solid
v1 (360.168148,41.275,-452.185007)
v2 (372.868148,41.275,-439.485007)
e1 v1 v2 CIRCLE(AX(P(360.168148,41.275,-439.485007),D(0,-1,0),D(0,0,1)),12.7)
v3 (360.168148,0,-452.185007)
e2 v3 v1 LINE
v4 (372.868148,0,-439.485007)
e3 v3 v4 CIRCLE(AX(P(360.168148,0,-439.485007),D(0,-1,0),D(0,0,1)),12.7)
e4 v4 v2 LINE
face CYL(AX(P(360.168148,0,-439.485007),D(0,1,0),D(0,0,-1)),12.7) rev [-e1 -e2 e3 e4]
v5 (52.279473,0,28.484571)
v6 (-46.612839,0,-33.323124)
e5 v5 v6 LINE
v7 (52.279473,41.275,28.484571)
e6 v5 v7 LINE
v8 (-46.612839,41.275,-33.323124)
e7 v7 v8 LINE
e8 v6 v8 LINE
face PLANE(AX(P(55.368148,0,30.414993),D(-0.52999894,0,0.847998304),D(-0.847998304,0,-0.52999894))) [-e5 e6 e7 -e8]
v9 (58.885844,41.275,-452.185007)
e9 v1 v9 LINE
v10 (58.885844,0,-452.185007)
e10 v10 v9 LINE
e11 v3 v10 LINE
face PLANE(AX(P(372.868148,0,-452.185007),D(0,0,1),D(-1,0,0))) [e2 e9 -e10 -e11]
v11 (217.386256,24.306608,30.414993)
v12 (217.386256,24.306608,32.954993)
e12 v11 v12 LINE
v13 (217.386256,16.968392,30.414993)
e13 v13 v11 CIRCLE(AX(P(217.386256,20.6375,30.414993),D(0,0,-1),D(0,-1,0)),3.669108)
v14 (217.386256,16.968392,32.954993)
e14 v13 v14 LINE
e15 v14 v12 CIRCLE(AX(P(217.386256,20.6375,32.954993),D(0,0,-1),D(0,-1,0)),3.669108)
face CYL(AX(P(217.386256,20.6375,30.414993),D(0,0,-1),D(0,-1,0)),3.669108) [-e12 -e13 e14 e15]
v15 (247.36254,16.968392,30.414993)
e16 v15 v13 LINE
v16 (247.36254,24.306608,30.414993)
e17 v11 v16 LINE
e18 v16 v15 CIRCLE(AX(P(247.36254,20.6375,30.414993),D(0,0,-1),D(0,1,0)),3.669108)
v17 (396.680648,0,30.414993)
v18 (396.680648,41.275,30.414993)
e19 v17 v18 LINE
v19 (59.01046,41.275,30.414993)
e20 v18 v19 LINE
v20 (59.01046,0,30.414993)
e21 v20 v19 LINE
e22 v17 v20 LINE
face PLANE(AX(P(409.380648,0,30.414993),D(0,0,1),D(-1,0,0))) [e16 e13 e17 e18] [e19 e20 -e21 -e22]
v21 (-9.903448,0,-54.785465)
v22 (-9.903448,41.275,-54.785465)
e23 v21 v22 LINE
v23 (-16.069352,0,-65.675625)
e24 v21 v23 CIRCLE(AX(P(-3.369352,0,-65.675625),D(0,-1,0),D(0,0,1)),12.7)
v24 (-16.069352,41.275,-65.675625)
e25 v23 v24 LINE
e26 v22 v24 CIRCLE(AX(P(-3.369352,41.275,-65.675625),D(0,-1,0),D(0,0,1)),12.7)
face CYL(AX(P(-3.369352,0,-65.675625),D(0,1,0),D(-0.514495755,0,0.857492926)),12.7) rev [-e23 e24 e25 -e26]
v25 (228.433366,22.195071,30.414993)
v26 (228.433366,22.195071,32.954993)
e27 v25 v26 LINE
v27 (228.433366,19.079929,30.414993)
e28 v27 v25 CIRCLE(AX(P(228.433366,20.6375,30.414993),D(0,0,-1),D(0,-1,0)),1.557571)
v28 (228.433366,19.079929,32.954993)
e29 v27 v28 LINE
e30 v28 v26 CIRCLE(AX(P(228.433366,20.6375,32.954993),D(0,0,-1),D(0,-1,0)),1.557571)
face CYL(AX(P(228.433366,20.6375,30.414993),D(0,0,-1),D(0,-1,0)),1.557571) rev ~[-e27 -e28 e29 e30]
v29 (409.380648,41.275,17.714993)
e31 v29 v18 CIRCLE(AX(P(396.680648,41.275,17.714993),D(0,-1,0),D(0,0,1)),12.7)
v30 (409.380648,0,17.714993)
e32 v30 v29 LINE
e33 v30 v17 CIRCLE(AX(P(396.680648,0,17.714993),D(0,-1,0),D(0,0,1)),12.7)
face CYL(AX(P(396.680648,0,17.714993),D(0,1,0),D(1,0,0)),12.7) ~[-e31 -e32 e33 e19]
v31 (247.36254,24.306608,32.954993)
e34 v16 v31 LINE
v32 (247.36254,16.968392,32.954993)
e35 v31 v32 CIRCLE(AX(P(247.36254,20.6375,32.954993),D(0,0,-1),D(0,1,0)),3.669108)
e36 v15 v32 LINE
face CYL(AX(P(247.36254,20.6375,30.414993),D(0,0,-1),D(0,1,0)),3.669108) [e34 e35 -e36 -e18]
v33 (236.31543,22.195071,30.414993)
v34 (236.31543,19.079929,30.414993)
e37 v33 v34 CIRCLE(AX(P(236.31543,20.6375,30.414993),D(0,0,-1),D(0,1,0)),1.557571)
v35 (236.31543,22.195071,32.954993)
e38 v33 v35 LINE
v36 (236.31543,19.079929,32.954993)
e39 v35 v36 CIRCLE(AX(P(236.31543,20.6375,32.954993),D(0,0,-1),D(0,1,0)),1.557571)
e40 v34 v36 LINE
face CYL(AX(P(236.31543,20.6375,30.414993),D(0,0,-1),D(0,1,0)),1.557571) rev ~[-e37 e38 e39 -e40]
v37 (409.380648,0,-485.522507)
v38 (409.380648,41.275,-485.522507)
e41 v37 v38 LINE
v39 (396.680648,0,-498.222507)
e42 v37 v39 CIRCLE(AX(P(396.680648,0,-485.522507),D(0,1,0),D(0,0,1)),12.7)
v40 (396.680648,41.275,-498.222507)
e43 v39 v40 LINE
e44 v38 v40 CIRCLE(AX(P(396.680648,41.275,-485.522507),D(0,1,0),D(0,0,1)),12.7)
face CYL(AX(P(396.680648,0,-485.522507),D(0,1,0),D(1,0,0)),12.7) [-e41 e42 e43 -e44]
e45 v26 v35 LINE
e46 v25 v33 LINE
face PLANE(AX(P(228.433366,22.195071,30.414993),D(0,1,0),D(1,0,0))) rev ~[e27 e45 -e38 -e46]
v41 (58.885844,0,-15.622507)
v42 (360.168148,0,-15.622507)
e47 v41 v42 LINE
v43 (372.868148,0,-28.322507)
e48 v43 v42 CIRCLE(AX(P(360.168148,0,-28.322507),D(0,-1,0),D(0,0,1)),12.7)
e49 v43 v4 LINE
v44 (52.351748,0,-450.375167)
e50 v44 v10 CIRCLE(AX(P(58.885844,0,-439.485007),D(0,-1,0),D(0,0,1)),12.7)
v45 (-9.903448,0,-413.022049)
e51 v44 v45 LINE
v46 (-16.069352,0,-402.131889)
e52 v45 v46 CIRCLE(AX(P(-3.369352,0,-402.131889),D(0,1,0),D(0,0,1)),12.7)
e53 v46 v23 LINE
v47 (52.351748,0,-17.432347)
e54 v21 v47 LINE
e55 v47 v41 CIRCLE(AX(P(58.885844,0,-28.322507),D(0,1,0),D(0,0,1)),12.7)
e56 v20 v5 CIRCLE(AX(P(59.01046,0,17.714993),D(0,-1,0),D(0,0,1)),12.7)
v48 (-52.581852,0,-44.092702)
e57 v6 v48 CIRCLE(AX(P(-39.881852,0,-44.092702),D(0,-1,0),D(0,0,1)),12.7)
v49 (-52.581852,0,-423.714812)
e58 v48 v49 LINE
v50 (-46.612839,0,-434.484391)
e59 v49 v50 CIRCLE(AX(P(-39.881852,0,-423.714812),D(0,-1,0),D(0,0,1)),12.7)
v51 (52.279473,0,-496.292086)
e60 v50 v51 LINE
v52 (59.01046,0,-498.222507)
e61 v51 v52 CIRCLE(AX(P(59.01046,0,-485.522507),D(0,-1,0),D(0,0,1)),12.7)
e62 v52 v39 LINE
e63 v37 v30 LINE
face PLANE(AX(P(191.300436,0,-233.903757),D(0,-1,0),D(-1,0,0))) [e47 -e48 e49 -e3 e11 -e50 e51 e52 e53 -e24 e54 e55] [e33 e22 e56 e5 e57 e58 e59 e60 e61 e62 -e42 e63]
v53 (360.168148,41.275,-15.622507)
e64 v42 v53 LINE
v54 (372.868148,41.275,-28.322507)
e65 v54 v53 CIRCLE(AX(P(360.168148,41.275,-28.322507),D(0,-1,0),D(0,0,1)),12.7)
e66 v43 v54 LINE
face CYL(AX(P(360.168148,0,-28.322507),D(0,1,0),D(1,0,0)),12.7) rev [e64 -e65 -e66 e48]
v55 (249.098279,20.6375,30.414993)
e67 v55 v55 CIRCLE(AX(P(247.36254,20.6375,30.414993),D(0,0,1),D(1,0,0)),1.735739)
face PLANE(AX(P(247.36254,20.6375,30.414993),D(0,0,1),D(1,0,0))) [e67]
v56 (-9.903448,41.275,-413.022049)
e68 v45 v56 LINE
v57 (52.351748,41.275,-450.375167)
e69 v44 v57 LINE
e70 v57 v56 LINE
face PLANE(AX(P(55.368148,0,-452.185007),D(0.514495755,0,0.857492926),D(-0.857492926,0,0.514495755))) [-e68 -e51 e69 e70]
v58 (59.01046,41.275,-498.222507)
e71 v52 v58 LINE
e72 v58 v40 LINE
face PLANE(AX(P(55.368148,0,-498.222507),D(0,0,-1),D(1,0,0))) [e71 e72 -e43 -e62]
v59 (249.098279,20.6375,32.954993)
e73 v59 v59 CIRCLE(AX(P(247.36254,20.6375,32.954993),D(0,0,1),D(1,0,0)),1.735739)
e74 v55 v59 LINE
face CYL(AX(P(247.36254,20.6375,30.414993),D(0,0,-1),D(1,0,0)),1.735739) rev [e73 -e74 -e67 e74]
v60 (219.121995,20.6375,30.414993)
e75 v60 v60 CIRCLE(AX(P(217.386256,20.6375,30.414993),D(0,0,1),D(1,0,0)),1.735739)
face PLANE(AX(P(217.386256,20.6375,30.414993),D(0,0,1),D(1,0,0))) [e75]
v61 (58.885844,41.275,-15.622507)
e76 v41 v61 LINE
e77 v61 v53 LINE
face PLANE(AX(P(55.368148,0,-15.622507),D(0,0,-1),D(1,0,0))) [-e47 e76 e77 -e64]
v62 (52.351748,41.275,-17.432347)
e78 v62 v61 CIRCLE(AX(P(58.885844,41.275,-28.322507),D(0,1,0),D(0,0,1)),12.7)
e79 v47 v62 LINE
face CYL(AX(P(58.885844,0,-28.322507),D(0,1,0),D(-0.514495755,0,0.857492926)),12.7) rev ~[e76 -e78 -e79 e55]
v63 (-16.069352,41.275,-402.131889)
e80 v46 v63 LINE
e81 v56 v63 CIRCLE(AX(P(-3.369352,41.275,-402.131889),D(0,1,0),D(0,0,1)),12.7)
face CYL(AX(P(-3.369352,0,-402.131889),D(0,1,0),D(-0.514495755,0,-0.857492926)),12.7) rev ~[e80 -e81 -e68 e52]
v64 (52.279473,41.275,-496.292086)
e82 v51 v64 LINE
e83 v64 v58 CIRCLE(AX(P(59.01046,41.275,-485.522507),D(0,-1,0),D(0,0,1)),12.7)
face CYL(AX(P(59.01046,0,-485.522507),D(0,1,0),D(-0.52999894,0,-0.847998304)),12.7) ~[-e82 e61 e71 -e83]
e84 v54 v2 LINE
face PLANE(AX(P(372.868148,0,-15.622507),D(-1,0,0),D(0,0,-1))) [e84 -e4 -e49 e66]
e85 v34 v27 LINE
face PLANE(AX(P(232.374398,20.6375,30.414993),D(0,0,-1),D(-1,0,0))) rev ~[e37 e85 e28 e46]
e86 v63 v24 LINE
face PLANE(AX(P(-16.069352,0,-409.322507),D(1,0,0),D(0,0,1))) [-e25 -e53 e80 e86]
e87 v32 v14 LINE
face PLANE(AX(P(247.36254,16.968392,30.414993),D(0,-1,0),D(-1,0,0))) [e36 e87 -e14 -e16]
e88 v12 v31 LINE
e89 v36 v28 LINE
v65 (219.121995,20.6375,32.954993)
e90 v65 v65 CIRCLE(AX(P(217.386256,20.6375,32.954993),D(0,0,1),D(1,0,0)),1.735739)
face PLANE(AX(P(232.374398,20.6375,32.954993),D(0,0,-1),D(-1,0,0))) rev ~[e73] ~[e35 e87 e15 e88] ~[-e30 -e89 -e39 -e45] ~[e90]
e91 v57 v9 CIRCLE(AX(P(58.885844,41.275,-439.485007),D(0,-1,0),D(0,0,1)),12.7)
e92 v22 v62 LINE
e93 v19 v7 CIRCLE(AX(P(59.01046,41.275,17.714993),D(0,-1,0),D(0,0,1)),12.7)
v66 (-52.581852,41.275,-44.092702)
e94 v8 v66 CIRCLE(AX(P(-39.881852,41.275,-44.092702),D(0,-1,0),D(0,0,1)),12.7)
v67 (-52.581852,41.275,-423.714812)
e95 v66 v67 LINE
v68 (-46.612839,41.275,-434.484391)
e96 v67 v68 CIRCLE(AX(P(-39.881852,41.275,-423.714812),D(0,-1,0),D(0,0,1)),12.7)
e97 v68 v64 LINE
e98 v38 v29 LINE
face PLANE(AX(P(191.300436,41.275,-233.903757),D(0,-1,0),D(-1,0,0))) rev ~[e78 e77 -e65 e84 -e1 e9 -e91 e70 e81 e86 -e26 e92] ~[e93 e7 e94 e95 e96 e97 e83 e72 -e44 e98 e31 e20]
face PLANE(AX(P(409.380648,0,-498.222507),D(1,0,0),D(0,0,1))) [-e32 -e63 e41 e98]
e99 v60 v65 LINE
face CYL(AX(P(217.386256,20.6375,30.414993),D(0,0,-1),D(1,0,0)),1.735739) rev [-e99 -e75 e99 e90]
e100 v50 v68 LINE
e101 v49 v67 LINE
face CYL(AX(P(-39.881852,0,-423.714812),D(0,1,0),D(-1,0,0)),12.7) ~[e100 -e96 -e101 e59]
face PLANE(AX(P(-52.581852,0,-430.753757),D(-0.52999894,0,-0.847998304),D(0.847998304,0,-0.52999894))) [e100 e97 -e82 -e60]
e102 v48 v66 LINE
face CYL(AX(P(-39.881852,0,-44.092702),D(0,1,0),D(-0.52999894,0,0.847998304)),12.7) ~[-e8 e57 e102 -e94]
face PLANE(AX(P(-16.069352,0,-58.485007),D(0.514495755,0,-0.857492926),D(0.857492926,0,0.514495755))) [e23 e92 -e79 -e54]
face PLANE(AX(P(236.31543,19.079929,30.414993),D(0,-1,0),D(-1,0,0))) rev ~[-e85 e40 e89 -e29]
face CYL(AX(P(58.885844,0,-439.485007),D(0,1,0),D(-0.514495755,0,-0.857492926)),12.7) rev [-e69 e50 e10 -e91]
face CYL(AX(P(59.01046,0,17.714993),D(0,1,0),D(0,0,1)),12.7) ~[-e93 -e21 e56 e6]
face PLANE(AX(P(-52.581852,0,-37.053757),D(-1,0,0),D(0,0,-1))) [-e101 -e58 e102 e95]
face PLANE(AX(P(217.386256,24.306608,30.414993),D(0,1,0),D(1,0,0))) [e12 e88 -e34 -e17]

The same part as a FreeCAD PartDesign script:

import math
import FreeCAD as App
import Part
import Sketcher

V = App.Vector
Q = App.Units.Quantity


def edges_at(feature, points):
    """Names of the edges that pass closest to the given points."""
    edges = feature.Shape.Edges
    near = lambda p: min(range(len(edges)), key=lambda i: edges[i].distToShape(Part.Vertex(*p))[0])
    return sorted({f"Edge{near(p) + 1}" for p in points})


def add_polygon(sketch, points):
    """Adds a closed chain of lines whose ends are joined by coincident constraints."""
    first, n = sketch.GeometryCount, len(points)
    for a, b in zip(points, points[1:] + points[:1]):
        sketch.addGeometry(Part.LineSegment(App.Vector(*a, 0), App.Vector(*b, 0)), False)
    for i in range(n):
        sketch.addConstraint(Sketcher.Constraint("Coincident", first + i, 2, first + (i + 1) % n, 1))

doc = App.newDocument("Part")
body = doc.addObject("PartDesign::Body", "Body")

# Sketch on XZ plane
sketch1 = body.newObject("Sketcher::SketchObject", "Sketch")
sketch1.AttachmentSupport = (doc.getObject("XZ_Plane"), [""])
sketch1.MapMode = "FlatFace"
add_polygon(sketch1, [(409, 30), (409, -498), (55, -498), (-53, -431), (-53, -37), (55, 30)])  # lines 0-5
sketch1.addConstraint([
    Sketcher.Constraint("Vertical", 0),
    Sketcher.Constraint("Horizontal", 1),
    Sketcher.Constraint("Vertical", 3),
    Sketcher.Constraint("Horizontal", 5),
    Sketcher.Constraint("Vertical", 1, 2, 4, 2),
    Sketcher.Constraint("Equal", 2, 4),
    Sketcher.Constraint("DistanceY", 3, 1, 3, 2, Q("15.5 in")),
    Sketcher.Constraint("DistanceX", 1, 2, 1, 1, Q("13.9375 in")),
    Sketcher.Constraint("DistanceY", 0, 2, 0, 1, Q("20.8125 in")),
    Sketcher.Constraint("DistanceX", 2, 2, 1, 2, Q("4.25 in")),
    Sketcher.Constraint("DistanceX", -1, 1, 0, 2, 409.380648),
    Sketcher.Constraint("DistanceY", 0, 2, -1, 1, 498.222507),
])
pad1 = body.newObject("PartDesign::Pad", "Pad")
pad1.Profile = sketch1
pad1.Length = Q("1.625 in")
pad1.Reversed = True

# Sketch on XZ plane
sketch2 = body.newObject("Sketcher::SketchObject", "Sketch001")
sketch2.AttachmentSupport = (doc.getObject("XZ_Plane"), [""])
sketch2.MapMode = "FlatFace"
add_polygon(sketch2, [(-124, -570), (-124, 102), (481, 102), (481, -570)])  # lines 0-3
add_polygon(sketch2, [(55, -498), (409, -498), (409, 30), (55, 30), (-53, -37), (-53, -431)])  # lines 4-9
add_polygon(sketch2, [(55, -16), (373, -16), (373, -452), (55, -452), (-16, -409), (-16, -58)])  # lines 10-15
sketch2.addConstraint([
    Sketcher.Constraint("Vertical", 0),
    Sketcher.Constraint("Horizontal", 1),
    Sketcher.Constraint("Vertical", 2),
    Sketcher.Constraint("Horizontal", 3),
    Sketcher.Constraint("Horizontal", 4),
    Sketcher.Constraint("Vertical", 5),
    Sketcher.Constraint("Horizontal", 6),
    Sketcher.Constraint("Vertical", 8),
    Sketcher.Constraint("Horizontal", 10),
    Sketcher.Constraint("Vertical", 11),
    Sketcher.Constraint("Horizontal", 12),
    Sketcher.Constraint("Vertical", 14),
    Sketcher.Constraint("Vertical", 6, 2, 9, 2),
    Sketcher.Constraint("Vertical", 9, 2, 12, 2),
    Sketcher.Constraint("Vertical", 12, 2, 15, 2),
    Sketcher.Constraint("Equal", 7, 9),
    Sketcher.Constraint("Equal", 13, 15),
    Sketcher.Constraint("DistanceX", 10, 1, 10, 2, Q("12.5 in")),
    Sketcher.Constraint("DistanceY", 8, 2, 8, 1, Q("15.5 in")),
    Sketcher.Constraint("DistanceY", 4, 2, 10, 2, Q("19 in")),
    Sketcher.Constraint("DistanceY", 9, 2, 13, 2, Q("3.5 in")),
    Sketcher.Constraint("DistanceY", 14, 2, 6, 2, Q("3.5 in")),
    Sketcher.Constraint("DistanceX", 4, 1, 4, 2, Q("13.9375 in")),
    Sketcher.Constraint("DistanceY", 5, 1, 5, 2, Q("20.8125 in")),
    Sketcher.Constraint("DistanceX", 7, 2, 6, 2, Q("4.25 in")),
    Sketcher.Constraint("DistanceX", 8, 2, 13, 2, Q("1.4375 in")),
    Sketcher.Constraint("DistanceX", 1, 1, 1, 2, 604.615),
    Sketcher.Constraint("DistanceY", 0, 1, 0, 2, 671.29),
    Sketcher.Constraint("DistanceX", 0, 2, -1, 1, 123.908),
    Sketcher.Constraint("DistanceY", -1, 1, 0, 2, 101.741),
    Sketcher.Constraint("DistanceX", -1, 1, 4, 2, 409.380648),
    Sketcher.Constraint("DistanceY", 4, 2, -1, 1, 498.222507),
])
pocket1 = body.newObject("PartDesign::Pocket", "Pocket")
pocket1.Profile = sketch2
pocket1.Length = Q("1.625 in")

# Sketch on XY plane
sketch3 = body.newObject("Sketcher::SketchObject", "Sketch002")
sketch3.AttachmentSupport = (doc.getObject("XY_Plane"), [""])
sketch3.MapMode = "FlatFace"
sketch3.AttachmentOffset = App.Placement(V(0, 0, 30.414993), App.Rotation())
sketch3.addGeometry([
    Part.LineSegment(V(247.4, 24.3, 0), V(217.4, 24.3, 0)),
    Part.ArcOfCircle(Part.Circle(V(217.4, 20.6, 0), V(0, 0, 1), 3.7), math.radians(90), math.radians(270)),
    Part.LineSegment(V(217.4, 17, 0), V(247.4, 17, 0)),
    Part.ArcOfCircle(Part.Circle(V(247.4, 20.6, 0), V(0, 0, 1), 3.7), math.radians(-90), math.radians(90)),
], False)
sketch3.addConstraint([
    Sketcher.Constraint("Tangent", 0, 2, 1, 1),
    Sketcher.Constraint("Tangent", 1, 2, 2, 1),
    Sketcher.Constraint("Tangent", 2, 2, 3, 1),
    Sketcher.Constraint("Tangent", 3, 2, 0, 1),
    Sketcher.Constraint("Horizontal", 0),
    Sketcher.Constraint("Horizontal", 2),
    Sketcher.Constraint("DistanceY", -1, 1, 1, 3, Q("0.8125 in")),
    Sketcher.Constraint("Radius", 1, 3.669108),
    Sketcher.Constraint("DistanceX", 0, 2, 0, 1, 29.976284),
    Sketcher.Constraint("DistanceX", -1, 1, 3, 3, 247.36254),
])
pad2 = body.newObject("PartDesign::Pad", "Pad001")
pad2.Profile = sketch3
pad2.Length = Q("0.1 in")

# Sketch on XY plane
sketch4 = body.newObject("Sketcher::SketchObject", "Sketch003")
sketch4.AttachmentSupport = (doc.getObject("XY_Plane"), [""])
sketch4.MapMode = "FlatFace"
sketch4.AttachmentOffset = App.Placement(V(0, 0, 30.414993), App.Rotation())
add_polygon(sketch4, [(-124.1, 112.8), (-124.1, -71.5), (480.9, -71.5), (480.9, 112.8)])  # lines 0-3
sketch4.addGeometry(Part.ArcOfCircle(Part.Circle(V(217.4, 20.6, 0), V(0, 0, 1), 3.7), math.radians(90), math.radians(270)), False)  # 4
sketch4.addGeometry(Part.LineSegment(V(217.4, 24.3, 0), V(247.4, 24.3, 0)), False)  # 5
sketch4.addGeometry(Part.ArcOfCircle(Part.Circle(V(247.4, 20.6, 0), V(0, 0, 1), 3.7), math.radians(-90), math.radians(90)), False)  # 6
sketch4.addGeometry(Part.LineSegment(V(247.4, 17, 0), V(217.4, 17, 0)), False)  # 7
sketch4.addGeometry(Part.Circle(V(217.4, 20.6, 0), V(0, 0, 1), 1.7), False)  # 8
sketch4.addGeometry(Part.Circle(V(247.4, 20.6, 0), V(0, 0, 1), 1.7), False)  # 9
sketch4.addGeometry(Part.LineSegment(V(236.3, 22.2, 0), V(228.4, 22.2, 0)), False)  # 10
sketch4.addGeometry(Part.ArcOfCircle(Part.Circle(V(228.4, 20.6, 0), V(0, 0, 1), 1.6), math.radians(90), math.radians(270)), False)  # 11
sketch4.addGeometry(Part.LineSegment(V(228.4, 19.1, 0), V(236.3, 19.1, 0)), False)  # 12
sketch4.addGeometry(Part.ArcOfCircle(Part.Circle(V(236.3, 20.6, 0), V(0, 0, 1), 1.6), math.radians(-90), math.radians(90)), False)  # 13
sketch4.addConstraint([
    Sketcher.Constraint("Tangent", 4, 1, 5, 1),
    Sketcher.Constraint("Tangent", 5, 2, 6, 2),
    Sketcher.Constraint("Tangent", 6, 1, 7, 1),
    Sketcher.Constraint("Tangent", 7, 2, 4, 2),
    Sketcher.Constraint("Tangent", 10, 2, 11, 1),
    Sketcher.Constraint("Tangent", 11, 2, 12, 1),
    Sketcher.Constraint("Tangent", 12, 2, 13, 1),
    Sketcher.Constraint("Tangent", 13, 2, 10, 1),
    Sketcher.Constraint("Vertical", 0),
    Sketcher.Constraint("Horizontal", 1),
    Sketcher.Constraint("Vertical", 2),
    Sketcher.Constraint("Horizontal", 3),
    Sketcher.Constraint("Horizontal", 5),
    Sketcher.Constraint("Horizontal", 7),
    Sketcher.Constraint("Horizontal", 10),
    Sketcher.Constraint("Horizontal", 12),
    Sketcher.Constraint("Coincident", 8, 3, 4, 3),
    Sketcher.Constraint("Coincident", 9, 3, 6, 3),
    Sketcher.Constraint("Equal", 8, 9),
    Sketcher.Constraint("Horizontal", 9, 3, 11, 3),
    Sketcher.Constraint("DistanceY", -1, 1, 4, 3, Q("0.8125 in")),
    Sketcher.Constraint("Radius", 4, 3.669108),
    Sketcher.Constraint("Radius", 11, 1.557571),
    Sketcher.Constraint("Diameter", 8, 3.471477),
    Sketcher.Constraint("DistanceX", 1, 1, 1, 2, 604.997),
    Sketcher.Constraint("DistanceY", 0, 2, 0, 1, 184.309),
    Sketcher.Constraint("DistanceX", 0, 2, -1, 1, 124.099),
    Sketcher.Constraint("DistanceY", 0, 2, -1, 1, 71.517),
    Sketcher.Constraint("DistanceX", 5, 1, 5, 2, 29.976284),
    Sketcher.Constraint("DistanceX", 10, 2, 10, 1, 7.882065),
    Sketcher.Constraint("DistanceX", -1, 1, 6, 3, 247.36254),
    Sketcher.Constraint("DistanceX", -1, 1, 13, 3, 236.31543),
])
pocket2 = body.newObject("PartDesign::Pocket", "Pocket001")
pocket2.Profile = sketch4
pocket2.Length = Q("0.1 in")
pocket2.Reversed = True
doc.recompute()

fillet = body.newObject("PartDesign::Fillet", "Fillet")
fillet.Base = (pocket2, edges_at(pocket2, [(372.868, 20.637, -452.185)]))
fillet.Radius = Q("0.5 in")
doc.recompute()

fillet2 = body.newObject("PartDesign::Fillet", "Fillet001")
fillet2.Base = (fillet, edges_at(fillet, [(372.868, 20.637, -15.623)]))
fillet2.Radius = Q("0.5 in")
doc.recompute()

fillet3 = body.newObject("PartDesign::Fillet", "Fillet002")
fillet3.Base = (fillet2, edges_at(fillet2, [(-16.069, 20.637, -409.323)]))
fillet3.Radius = Q("0.5 in")
doc.recompute()

fillet4 = body.newObject("PartDesign::Fillet", "Fillet003")
fillet4.Base = (fillet3, edges_at(fillet3, [(55.368, 20.637, -452.185)]))
fillet4.Radius = Q("0.5 in")
doc.recompute()

fillet5 = body.newObject("PartDesign::Fillet", "Fillet004")
fillet5.Base = (fillet4, edges_at(fillet4, [(55.368, 20.637, -15.623)]))
fillet5.Radius = Q("0.5 in")
doc.recompute()

fillet6 = body.newObject("PartDesign::Fillet", "Fillet005")
fillet6.Base = (fillet5, edges_at(fillet5, [(-16.069, 20.637, -58.485)]))
fillet6.Radius = Q("0.5 in")
doc.recompute()

fillet7 = body.newObject("PartDesign::Fillet", "Fillet006")
fillet7.Base = (fillet6, edges_at(fillet6, [(55.368, 20.637, 30.415)]))
fillet7.Radius = Q("0.5 in")
doc.recompute()

fillet8 = body.newObject("PartDesign::Fillet", "Fillet007")
fillet8.Base = (fillet7, edges_at(fillet7, [(-52.582, 20.637, -37.054)]))
fillet8.Radius = Q("0.5 in")
doc.recompute()

fillet9 = body.newObject("PartDesign::Fillet", "Fillet008")
fillet9.Base = (fillet8, edges_at(fillet8, [(-52.582, 20.637, -430.754)]))
fillet9.Radius = Q("0.5 in")
doc.recompute()

fillet10 = body.newObject("PartDesign::Fillet", "Fillet009")
fillet10.Base = (fillet9, edges_at(fillet9, [(55.368, 20.637, -498.223)]))
fillet10.Radius = Q("0.5 in")
doc.recompute()

fillet11 = body.newObject("PartDesign::Fillet", "Fillet010")
fillet11.Base = (fillet10, edges_at(fillet10, [(409.381, 20.637, 30.415)]))
fillet11.Radius = Q("0.5 in")
doc.recompute()

fillet12 = body.newObject("PartDesign::Fillet", "Fillet011")
fillet12.Base = (fillet11, edges_at(fillet11, [(409.381, 20.637, -498.223)]))
fillet12.Radius = Q("0.5 in")

doc.recompute()
